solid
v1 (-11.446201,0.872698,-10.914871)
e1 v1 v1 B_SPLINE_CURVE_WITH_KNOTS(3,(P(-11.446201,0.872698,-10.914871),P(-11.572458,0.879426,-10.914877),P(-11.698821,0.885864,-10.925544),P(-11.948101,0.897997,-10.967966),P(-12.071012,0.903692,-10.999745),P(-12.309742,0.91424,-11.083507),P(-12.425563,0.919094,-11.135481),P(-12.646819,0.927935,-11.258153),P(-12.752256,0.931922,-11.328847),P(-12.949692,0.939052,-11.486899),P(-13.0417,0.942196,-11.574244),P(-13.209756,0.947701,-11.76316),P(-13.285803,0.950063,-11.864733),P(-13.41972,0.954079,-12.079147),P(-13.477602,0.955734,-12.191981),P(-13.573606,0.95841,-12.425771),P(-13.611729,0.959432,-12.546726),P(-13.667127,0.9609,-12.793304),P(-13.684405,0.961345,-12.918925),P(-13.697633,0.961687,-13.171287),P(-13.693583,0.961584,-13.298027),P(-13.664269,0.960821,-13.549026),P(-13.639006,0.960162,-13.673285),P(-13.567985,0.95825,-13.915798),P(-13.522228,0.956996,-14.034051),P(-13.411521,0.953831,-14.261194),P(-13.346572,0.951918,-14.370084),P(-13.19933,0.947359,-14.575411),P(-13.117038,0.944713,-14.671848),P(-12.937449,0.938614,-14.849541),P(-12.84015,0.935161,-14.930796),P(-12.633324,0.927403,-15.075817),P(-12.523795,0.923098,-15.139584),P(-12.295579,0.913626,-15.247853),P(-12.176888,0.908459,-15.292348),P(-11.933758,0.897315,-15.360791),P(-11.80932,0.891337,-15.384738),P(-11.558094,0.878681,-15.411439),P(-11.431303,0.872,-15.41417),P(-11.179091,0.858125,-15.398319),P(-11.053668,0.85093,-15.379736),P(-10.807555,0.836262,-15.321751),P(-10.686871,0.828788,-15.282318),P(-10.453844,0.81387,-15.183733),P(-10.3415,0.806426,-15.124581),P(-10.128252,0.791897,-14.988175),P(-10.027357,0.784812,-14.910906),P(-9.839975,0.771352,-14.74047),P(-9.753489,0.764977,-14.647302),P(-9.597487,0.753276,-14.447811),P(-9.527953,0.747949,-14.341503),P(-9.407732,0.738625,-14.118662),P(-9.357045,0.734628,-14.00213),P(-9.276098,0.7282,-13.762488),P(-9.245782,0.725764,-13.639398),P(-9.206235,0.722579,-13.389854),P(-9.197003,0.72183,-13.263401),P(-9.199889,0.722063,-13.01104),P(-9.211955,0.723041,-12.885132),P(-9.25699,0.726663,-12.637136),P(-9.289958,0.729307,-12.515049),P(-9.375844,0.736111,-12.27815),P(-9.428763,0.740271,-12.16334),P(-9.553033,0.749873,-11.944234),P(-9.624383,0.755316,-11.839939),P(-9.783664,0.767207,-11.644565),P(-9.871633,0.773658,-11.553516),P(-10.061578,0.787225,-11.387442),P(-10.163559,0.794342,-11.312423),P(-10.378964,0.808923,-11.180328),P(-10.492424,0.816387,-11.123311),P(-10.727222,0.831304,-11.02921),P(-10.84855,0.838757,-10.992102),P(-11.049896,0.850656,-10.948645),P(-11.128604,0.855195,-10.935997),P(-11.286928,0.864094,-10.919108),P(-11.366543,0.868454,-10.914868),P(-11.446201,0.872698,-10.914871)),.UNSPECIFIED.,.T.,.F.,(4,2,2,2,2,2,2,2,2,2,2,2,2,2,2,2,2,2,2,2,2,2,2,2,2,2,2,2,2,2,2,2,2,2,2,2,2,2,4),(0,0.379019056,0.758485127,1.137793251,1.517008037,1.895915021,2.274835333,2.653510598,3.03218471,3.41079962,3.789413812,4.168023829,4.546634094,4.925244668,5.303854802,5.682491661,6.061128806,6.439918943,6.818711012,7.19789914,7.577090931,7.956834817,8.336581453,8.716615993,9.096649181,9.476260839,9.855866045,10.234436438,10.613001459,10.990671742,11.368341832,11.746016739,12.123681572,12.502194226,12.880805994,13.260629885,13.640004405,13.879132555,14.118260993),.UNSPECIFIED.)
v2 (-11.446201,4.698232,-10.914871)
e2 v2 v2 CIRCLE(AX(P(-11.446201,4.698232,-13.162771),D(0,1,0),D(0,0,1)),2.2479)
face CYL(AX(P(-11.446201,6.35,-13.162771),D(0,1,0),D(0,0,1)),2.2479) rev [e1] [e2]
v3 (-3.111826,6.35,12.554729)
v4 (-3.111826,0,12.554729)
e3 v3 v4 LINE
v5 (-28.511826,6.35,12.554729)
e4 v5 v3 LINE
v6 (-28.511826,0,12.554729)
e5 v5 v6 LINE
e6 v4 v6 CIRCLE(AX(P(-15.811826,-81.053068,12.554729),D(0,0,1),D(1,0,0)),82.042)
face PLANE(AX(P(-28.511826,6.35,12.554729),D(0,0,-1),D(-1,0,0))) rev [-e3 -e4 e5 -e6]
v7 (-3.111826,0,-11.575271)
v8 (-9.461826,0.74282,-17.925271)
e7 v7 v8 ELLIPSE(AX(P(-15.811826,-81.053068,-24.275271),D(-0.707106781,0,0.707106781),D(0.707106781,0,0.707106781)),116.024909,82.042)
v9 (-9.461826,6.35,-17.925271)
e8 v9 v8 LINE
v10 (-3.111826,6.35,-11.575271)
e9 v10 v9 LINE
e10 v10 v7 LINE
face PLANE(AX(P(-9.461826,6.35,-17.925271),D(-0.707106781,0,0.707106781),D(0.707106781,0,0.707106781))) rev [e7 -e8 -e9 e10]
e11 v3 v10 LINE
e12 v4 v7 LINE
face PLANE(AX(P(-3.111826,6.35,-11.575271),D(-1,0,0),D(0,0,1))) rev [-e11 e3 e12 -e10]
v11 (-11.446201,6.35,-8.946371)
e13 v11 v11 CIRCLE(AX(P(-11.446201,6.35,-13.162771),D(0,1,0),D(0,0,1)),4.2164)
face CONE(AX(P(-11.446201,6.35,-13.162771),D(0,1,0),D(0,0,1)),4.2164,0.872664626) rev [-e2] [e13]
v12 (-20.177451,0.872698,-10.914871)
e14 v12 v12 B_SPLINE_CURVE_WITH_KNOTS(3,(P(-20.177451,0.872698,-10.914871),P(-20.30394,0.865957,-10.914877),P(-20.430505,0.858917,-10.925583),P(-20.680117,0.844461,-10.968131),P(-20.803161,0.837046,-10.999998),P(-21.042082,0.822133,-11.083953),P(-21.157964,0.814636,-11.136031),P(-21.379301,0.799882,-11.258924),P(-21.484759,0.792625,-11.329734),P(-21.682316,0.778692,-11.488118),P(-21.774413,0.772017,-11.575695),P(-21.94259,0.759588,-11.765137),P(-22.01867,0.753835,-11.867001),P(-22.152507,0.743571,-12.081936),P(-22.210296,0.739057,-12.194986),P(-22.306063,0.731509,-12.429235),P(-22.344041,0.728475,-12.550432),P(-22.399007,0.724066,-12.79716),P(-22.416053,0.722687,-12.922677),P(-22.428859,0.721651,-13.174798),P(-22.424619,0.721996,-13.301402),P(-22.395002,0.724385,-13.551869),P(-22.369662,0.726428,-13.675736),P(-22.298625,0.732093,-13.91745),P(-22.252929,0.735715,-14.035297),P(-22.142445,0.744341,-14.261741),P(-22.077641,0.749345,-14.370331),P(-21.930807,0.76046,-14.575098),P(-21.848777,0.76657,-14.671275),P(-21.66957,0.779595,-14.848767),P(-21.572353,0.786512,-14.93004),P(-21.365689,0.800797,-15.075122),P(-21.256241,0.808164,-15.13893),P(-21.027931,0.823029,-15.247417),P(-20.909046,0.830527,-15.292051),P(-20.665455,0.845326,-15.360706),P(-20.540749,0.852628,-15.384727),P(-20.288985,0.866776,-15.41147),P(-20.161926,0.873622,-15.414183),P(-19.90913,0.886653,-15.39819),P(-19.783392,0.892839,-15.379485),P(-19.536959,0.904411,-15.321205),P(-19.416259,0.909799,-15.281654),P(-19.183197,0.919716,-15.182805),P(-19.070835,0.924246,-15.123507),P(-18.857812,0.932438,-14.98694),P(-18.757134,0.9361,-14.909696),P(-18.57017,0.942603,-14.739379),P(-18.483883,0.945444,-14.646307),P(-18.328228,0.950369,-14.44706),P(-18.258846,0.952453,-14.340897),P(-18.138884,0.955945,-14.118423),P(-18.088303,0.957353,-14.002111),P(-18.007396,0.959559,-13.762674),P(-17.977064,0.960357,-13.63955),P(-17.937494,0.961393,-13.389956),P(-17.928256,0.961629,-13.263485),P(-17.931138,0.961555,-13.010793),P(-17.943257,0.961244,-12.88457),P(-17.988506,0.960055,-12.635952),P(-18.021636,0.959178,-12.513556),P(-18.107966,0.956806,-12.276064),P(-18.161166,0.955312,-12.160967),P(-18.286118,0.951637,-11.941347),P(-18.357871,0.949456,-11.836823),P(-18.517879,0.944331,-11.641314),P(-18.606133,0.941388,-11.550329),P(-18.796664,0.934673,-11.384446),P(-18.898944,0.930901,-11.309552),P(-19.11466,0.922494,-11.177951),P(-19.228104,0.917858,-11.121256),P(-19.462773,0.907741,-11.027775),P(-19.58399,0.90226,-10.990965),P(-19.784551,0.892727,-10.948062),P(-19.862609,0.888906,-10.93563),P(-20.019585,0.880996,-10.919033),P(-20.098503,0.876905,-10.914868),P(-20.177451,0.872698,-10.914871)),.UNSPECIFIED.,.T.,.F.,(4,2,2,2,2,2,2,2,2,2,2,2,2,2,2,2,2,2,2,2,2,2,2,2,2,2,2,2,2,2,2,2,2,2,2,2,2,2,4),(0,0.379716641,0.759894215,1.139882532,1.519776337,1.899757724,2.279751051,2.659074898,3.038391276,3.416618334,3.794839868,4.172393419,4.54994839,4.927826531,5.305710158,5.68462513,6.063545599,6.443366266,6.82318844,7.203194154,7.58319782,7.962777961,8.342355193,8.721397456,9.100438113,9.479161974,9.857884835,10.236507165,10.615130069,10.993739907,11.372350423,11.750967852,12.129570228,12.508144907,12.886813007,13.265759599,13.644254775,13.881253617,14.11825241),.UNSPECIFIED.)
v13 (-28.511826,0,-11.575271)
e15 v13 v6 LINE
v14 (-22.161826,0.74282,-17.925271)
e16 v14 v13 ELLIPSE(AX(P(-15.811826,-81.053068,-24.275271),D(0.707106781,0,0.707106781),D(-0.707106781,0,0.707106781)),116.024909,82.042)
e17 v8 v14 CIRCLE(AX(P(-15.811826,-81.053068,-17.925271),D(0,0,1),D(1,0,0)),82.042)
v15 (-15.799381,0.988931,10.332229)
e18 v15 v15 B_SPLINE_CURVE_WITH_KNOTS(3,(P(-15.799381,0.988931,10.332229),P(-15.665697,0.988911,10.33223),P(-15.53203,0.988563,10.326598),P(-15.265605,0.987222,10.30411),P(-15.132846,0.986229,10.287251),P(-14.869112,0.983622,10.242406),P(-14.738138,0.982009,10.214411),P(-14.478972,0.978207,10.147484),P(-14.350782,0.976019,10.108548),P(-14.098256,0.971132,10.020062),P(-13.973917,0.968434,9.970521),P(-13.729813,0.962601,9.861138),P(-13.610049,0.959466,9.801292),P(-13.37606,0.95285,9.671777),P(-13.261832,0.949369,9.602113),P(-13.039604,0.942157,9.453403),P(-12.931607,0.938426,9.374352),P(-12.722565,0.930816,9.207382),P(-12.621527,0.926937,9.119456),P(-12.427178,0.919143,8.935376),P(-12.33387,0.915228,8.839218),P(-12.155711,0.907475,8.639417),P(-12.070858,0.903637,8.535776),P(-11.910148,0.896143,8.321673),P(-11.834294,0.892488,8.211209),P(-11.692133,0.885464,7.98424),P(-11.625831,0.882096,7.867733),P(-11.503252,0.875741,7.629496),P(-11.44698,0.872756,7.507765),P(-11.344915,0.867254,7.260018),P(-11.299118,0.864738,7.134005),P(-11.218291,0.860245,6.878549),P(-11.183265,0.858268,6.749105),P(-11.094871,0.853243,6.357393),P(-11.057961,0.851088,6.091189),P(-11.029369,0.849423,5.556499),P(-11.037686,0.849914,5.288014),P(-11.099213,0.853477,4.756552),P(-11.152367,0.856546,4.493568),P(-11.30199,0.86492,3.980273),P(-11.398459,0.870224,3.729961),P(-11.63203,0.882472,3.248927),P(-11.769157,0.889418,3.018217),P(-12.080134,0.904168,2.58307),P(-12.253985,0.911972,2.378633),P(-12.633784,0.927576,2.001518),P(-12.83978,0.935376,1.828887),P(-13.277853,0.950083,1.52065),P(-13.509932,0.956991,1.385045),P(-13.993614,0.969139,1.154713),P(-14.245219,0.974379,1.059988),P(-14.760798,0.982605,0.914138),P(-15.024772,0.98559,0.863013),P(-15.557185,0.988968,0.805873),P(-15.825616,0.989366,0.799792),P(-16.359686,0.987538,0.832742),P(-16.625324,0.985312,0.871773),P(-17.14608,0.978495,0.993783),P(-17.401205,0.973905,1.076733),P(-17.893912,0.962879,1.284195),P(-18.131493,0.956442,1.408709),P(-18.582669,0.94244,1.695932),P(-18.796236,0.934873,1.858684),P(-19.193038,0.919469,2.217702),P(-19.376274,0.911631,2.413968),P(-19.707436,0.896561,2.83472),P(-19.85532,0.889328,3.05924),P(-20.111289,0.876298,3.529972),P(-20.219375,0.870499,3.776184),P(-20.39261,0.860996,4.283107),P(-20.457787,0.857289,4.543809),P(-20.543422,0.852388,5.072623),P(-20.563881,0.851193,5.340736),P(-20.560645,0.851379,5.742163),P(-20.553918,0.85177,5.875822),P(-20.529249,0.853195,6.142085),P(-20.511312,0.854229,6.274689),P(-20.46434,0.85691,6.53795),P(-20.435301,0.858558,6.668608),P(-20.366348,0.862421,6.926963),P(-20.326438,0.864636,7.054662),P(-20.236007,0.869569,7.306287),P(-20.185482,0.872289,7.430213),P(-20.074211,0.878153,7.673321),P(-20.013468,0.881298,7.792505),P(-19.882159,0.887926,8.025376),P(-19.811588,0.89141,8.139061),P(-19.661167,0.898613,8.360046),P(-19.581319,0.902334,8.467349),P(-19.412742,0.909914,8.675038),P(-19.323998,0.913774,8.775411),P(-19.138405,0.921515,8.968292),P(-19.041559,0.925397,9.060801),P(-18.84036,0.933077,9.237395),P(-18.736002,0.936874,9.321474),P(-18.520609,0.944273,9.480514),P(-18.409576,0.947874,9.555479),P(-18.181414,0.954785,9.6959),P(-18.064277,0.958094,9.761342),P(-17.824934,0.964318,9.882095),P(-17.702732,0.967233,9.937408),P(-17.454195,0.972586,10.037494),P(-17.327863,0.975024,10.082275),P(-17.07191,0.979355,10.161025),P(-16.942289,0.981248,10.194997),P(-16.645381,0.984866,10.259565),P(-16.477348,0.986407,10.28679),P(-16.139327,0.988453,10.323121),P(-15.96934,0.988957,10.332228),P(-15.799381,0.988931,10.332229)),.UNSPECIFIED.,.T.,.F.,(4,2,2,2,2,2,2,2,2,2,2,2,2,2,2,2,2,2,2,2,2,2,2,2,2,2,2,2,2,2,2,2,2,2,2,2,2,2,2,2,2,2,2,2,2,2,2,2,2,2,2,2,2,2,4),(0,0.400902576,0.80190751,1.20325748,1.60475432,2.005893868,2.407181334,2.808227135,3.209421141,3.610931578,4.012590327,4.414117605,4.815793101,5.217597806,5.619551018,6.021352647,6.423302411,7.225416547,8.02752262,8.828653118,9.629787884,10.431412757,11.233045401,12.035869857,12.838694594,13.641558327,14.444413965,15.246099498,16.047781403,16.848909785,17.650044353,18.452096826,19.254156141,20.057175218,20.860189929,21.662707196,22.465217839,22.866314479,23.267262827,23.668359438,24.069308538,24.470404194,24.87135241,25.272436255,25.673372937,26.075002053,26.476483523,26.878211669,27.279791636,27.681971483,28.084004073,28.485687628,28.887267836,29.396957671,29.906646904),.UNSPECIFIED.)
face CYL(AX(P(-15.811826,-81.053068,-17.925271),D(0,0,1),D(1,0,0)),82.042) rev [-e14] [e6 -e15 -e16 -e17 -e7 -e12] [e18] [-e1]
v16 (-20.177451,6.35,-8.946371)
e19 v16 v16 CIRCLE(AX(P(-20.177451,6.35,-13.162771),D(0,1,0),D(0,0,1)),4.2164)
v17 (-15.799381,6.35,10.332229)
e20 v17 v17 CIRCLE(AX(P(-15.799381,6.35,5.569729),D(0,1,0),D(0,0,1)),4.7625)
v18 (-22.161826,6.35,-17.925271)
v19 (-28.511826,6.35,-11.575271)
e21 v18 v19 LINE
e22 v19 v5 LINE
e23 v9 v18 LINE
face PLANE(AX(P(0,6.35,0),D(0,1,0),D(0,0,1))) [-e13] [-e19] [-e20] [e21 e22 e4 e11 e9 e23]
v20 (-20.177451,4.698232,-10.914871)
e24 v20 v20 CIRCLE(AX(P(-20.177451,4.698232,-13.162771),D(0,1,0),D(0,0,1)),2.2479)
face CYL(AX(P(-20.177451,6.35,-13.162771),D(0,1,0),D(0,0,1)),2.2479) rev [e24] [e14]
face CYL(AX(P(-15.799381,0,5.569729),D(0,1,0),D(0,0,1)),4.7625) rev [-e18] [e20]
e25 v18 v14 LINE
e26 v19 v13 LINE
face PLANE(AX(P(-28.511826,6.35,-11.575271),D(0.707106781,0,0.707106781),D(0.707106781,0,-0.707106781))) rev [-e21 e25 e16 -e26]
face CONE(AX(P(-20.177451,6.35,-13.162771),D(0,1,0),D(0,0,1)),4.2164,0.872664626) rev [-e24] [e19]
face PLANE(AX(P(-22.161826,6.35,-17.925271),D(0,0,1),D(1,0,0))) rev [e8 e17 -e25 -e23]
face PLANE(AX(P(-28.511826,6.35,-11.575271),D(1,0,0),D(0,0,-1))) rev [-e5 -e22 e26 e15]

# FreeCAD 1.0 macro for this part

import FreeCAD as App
import Part
import Sketcher

V = App.Vector
Q = App.Units.Quantity


def add_polygon(sketch, points):
    """Adds a closed chain of lines whose ends are joined by coincident constraints."""
    first, n = sketch.GeometryCount, len(points)
    for a, b in zip(points, points[1:] + points[:1]):
        sketch.addGeometry(Part.LineSegment(App.Vector(*a, 0), App.Vector(*b, 0)), False)
    for i in range(n):
        sketch.addConstraint(Sketcher.Constraint("Coincident", first + i, 2, first + (i + 1) % n, 1))

doc = App.newDocument("Part")
params = doc.addObject("Spreadsheet::Sheet", "Params")
for row, (alias, value) in enumerate([
    ("sketch1_width", "1 in"),
    ("sketch1_width2", "0.5 in"),
    ("sketch1_height", "0.95 in"),
    ("pad1_length", "0.25 in"),
    ("sketch2_diameter", "0.177 in"),
    ("hole_diameter", "0.177 in"),
    ("hole_csink_diameter", "0.332 in"),
    ("sketch3_diameter", "6.46 in"),
    ("sketch4_diameter", "0.089 in"),
    ("sketch5_diameter", "0.375 in"),
], start=1):
    params.set(f"A{row}", alias)
    params.set(f"B{row}", "=" + value)
    params.setAlias(f"B{row}", alias)

body = doc.addObject("PartDesign::Body", "Body")

# Sketch on XZ plane
sketch1 = body.newObject("Sketcher::SketchObject", "Sketch")
sketch1.AttachmentSupport = (doc.getObject("XZ_Plane"), [""])
sketch1.MapMode = "FlatFace"
add_polygon(sketch1, [(-22, -18), (-29, -12), (-29, 13), (-3, 13), (-3, -12), (-9, -18)])  # lines 0-5
sketch1.addConstraint([
    Sketcher.Constraint("Vertical", 1),
    Sketcher.Constraint("Horizontal", 2),
    Sketcher.Constraint("Vertical", 3),
    Sketcher.Constraint("Horizontal", 5),
    Sketcher.Constraint("Perpendicular", 0, 4),
    Sketcher.Constraint("Horizontal", 0, 2, 3, 2),
    Sketcher.Constraint("Equal", 0, 4),
    Sketcher.Constraint("DistanceX", 2, 1, 2, 2, Q("1 in")),
    Sketcher.Constraint("DistanceX", 5, 2, 5, 1, Q("0.5 in")),
    Sketcher.Constraint("DistanceY", 1, 1, 1, 2, Q("0.95 in")),
    Sketcher.Constraint("DistanceY", 0, 2, -1, 1, Q("11.575271 mm")),
    Sketcher.Constraint("DistanceX", 0, 2, -1, 1, Q("28.511826 mm")),
])
sketch1.setExpression("Constraints[13]", "Params.sketch1_width")
sketch1.setExpression("Constraints[14]", "Params.sketch1_width2")
sketch1.setExpression("Constraints[15]", "Params.sketch1_height")
pad1 = body.newObject("PartDesign::Pad", "Pad")
pad1.Profile = sketch1
pad1.setExpression("Length", "Params.pad1_length")
pad1.Reversed = True

# Sketch on XZ plane
sketch2 = body.newObject("Sketcher::SketchObject", "Sketch001")
sketch2.AttachmentSupport = (doc.getObject("XZ_Plane"), [""])
sketch2.MapMode = "FlatFace"
sketch2.AttachmentOffset = App.Placement(V(0, 0, -0.25 * 25.4), App.Rotation())
sketch2.addGeometry([
    Part.Circle(V(-20.2, -13.2, 0), V(0, 0, 1), 2.2),
    Part.Circle(V(-11.4, -13.2, 0), V(0, 0, 1), 2.2),
], False)
sketch2.addConstraint([
    Sketcher.Constraint("Equal", 0, 1),
    Sketcher.Constraint("Horizontal", 0, 3, 1, 3),
    Sketcher.Constraint("Diameter", 0, Q("0.177 in")),
    Sketcher.Constraint("DistanceX", 0, 3, 1, 3, Q("0.34375 in")),
    Sketcher.Constraint("DistanceX", 1, 3, -1, 1, Q("11.446201 mm")),
    Sketcher.Constraint("DistanceY", 0, 3, -1, 1, Q("13.162771 mm")),
])
sketch2.setExpression("Constraints[2]", "Params.sketch2_diameter")
doc.recompute()
hole = body.newObject("PartDesign::Hole", "Hole")
hole.Profile = sketch2
hole.ThreadType = "None"
hole.setExpression("Diameter", "Params.hole_diameter")
hole.DepthType = "ThroughAll"
hole.HoleCutType = "Countersink"
hole.setExpression("HoleCutDiameter", "Params.hole_csink_diameter")
hole.HoleCutCountersinkAngle = 100
hole.Reversed = True

# Sketch on XY plane
sketch3 = body.newObject("Sketcher::SketchObject", "Sketch002")
sketch3.AttachmentSupport = (doc.getObject("XY_Plane"), [""])
sketch3.MapMode = "FlatFace"
sketch3.AttachmentOffset = App.Placement(V(0, 0, 12.554729), App.Rotation())
sketch3.addGeometry(Part.Circle(V(-16, -81, 0), V(0, 0, 1), 82), False)
sketch3.addConstraint([
    Sketcher.Constraint("Diameter", 0, Q("6.46 in")),
    Sketcher.Constraint("DistanceX", 0, 3, -1, 1, Q("15.811826 mm")),
    Sketcher.Constraint("DistanceY", 0, 3, -1, 1, Q("81.053068 mm")),
])
sketch3.setExpression("Constraints[0]", "Params.sketch3_diameter")
pocket1 = body.newObject("PartDesign::Pocket", "Pocket")
pocket1.Profile = sketch3
pocket1.Type = "ThroughAll"

# Sketch on XZ plane
sketch4 = body.newObject("Sketcher::SketchObject", "Sketch003")
sketch4.AttachmentSupport = (doc.getObject("XZ_Plane"), [""])
sketch4.MapMode = "FlatFace"
sketch4.AttachmentOffset = App.Placement(V(0, 0, -0.25 * 25.4), App.Rotation())
sketch4.addGeometry(Part.Circle(V(-15.8, 5.6, 0), V(0, 0, 1), 1.1), False)
sketch4.addConstraint([
    Sketcher.Constraint("Diameter", 0, Q("0.089 in")),
    Sketcher.Constraint("DistanceX", 0, 3, -1, 1, Q("15.799381 mm")),
    Sketcher.Constraint("DistanceY", -1, 1, 0, 3, Q("5.569729 mm")),
])
sketch4.setExpression("Constraints[0]", "Params.sketch4_diameter")
pocket2 = body.newObject("PartDesign::Pocket", "Pocket001")
pocket2.Profile = sketch4
pocket2.Type = "ThroughAll"
pocket2.Reversed = True

# Sketch on XZ plane
sketch5 = body.newObject("Sketcher::SketchObject", "Sketch004")
sketch5.AttachmentSupport = (doc.getObject("XZ_Plane"), [""])
sketch5.MapMode = "FlatFace"
sketch5.AttachmentOffset = App.Placement(V(0, 0, -0.25 * 25.4), App.Rotation())
sketch5.addGeometry(Part.Circle(V(-15.8, 5.6, 0), V(0, 0, 1), 4.8), False)
sketch5.addConstraint([
    Sketcher.Constraint("Diameter", 0, Q("0.375 in")),
    Sketcher.Constraint("DistanceX", 0, 3, -1, 1, Q("15.799381 mm")),
    Sketcher.Constraint("DistanceY", -1, 1, 0, 3, Q("5.569729 mm")),
])
sketch5.setExpression("Constraints[0]", "Params.sketch5_diameter")
pocket3 = body.newObject("PartDesign::Pocket", "Pocket002")
pocket3.Profile = sketch5
pocket3.Type = "ThroughAll"
pocket3.Reversed = True

doc.recompute()
